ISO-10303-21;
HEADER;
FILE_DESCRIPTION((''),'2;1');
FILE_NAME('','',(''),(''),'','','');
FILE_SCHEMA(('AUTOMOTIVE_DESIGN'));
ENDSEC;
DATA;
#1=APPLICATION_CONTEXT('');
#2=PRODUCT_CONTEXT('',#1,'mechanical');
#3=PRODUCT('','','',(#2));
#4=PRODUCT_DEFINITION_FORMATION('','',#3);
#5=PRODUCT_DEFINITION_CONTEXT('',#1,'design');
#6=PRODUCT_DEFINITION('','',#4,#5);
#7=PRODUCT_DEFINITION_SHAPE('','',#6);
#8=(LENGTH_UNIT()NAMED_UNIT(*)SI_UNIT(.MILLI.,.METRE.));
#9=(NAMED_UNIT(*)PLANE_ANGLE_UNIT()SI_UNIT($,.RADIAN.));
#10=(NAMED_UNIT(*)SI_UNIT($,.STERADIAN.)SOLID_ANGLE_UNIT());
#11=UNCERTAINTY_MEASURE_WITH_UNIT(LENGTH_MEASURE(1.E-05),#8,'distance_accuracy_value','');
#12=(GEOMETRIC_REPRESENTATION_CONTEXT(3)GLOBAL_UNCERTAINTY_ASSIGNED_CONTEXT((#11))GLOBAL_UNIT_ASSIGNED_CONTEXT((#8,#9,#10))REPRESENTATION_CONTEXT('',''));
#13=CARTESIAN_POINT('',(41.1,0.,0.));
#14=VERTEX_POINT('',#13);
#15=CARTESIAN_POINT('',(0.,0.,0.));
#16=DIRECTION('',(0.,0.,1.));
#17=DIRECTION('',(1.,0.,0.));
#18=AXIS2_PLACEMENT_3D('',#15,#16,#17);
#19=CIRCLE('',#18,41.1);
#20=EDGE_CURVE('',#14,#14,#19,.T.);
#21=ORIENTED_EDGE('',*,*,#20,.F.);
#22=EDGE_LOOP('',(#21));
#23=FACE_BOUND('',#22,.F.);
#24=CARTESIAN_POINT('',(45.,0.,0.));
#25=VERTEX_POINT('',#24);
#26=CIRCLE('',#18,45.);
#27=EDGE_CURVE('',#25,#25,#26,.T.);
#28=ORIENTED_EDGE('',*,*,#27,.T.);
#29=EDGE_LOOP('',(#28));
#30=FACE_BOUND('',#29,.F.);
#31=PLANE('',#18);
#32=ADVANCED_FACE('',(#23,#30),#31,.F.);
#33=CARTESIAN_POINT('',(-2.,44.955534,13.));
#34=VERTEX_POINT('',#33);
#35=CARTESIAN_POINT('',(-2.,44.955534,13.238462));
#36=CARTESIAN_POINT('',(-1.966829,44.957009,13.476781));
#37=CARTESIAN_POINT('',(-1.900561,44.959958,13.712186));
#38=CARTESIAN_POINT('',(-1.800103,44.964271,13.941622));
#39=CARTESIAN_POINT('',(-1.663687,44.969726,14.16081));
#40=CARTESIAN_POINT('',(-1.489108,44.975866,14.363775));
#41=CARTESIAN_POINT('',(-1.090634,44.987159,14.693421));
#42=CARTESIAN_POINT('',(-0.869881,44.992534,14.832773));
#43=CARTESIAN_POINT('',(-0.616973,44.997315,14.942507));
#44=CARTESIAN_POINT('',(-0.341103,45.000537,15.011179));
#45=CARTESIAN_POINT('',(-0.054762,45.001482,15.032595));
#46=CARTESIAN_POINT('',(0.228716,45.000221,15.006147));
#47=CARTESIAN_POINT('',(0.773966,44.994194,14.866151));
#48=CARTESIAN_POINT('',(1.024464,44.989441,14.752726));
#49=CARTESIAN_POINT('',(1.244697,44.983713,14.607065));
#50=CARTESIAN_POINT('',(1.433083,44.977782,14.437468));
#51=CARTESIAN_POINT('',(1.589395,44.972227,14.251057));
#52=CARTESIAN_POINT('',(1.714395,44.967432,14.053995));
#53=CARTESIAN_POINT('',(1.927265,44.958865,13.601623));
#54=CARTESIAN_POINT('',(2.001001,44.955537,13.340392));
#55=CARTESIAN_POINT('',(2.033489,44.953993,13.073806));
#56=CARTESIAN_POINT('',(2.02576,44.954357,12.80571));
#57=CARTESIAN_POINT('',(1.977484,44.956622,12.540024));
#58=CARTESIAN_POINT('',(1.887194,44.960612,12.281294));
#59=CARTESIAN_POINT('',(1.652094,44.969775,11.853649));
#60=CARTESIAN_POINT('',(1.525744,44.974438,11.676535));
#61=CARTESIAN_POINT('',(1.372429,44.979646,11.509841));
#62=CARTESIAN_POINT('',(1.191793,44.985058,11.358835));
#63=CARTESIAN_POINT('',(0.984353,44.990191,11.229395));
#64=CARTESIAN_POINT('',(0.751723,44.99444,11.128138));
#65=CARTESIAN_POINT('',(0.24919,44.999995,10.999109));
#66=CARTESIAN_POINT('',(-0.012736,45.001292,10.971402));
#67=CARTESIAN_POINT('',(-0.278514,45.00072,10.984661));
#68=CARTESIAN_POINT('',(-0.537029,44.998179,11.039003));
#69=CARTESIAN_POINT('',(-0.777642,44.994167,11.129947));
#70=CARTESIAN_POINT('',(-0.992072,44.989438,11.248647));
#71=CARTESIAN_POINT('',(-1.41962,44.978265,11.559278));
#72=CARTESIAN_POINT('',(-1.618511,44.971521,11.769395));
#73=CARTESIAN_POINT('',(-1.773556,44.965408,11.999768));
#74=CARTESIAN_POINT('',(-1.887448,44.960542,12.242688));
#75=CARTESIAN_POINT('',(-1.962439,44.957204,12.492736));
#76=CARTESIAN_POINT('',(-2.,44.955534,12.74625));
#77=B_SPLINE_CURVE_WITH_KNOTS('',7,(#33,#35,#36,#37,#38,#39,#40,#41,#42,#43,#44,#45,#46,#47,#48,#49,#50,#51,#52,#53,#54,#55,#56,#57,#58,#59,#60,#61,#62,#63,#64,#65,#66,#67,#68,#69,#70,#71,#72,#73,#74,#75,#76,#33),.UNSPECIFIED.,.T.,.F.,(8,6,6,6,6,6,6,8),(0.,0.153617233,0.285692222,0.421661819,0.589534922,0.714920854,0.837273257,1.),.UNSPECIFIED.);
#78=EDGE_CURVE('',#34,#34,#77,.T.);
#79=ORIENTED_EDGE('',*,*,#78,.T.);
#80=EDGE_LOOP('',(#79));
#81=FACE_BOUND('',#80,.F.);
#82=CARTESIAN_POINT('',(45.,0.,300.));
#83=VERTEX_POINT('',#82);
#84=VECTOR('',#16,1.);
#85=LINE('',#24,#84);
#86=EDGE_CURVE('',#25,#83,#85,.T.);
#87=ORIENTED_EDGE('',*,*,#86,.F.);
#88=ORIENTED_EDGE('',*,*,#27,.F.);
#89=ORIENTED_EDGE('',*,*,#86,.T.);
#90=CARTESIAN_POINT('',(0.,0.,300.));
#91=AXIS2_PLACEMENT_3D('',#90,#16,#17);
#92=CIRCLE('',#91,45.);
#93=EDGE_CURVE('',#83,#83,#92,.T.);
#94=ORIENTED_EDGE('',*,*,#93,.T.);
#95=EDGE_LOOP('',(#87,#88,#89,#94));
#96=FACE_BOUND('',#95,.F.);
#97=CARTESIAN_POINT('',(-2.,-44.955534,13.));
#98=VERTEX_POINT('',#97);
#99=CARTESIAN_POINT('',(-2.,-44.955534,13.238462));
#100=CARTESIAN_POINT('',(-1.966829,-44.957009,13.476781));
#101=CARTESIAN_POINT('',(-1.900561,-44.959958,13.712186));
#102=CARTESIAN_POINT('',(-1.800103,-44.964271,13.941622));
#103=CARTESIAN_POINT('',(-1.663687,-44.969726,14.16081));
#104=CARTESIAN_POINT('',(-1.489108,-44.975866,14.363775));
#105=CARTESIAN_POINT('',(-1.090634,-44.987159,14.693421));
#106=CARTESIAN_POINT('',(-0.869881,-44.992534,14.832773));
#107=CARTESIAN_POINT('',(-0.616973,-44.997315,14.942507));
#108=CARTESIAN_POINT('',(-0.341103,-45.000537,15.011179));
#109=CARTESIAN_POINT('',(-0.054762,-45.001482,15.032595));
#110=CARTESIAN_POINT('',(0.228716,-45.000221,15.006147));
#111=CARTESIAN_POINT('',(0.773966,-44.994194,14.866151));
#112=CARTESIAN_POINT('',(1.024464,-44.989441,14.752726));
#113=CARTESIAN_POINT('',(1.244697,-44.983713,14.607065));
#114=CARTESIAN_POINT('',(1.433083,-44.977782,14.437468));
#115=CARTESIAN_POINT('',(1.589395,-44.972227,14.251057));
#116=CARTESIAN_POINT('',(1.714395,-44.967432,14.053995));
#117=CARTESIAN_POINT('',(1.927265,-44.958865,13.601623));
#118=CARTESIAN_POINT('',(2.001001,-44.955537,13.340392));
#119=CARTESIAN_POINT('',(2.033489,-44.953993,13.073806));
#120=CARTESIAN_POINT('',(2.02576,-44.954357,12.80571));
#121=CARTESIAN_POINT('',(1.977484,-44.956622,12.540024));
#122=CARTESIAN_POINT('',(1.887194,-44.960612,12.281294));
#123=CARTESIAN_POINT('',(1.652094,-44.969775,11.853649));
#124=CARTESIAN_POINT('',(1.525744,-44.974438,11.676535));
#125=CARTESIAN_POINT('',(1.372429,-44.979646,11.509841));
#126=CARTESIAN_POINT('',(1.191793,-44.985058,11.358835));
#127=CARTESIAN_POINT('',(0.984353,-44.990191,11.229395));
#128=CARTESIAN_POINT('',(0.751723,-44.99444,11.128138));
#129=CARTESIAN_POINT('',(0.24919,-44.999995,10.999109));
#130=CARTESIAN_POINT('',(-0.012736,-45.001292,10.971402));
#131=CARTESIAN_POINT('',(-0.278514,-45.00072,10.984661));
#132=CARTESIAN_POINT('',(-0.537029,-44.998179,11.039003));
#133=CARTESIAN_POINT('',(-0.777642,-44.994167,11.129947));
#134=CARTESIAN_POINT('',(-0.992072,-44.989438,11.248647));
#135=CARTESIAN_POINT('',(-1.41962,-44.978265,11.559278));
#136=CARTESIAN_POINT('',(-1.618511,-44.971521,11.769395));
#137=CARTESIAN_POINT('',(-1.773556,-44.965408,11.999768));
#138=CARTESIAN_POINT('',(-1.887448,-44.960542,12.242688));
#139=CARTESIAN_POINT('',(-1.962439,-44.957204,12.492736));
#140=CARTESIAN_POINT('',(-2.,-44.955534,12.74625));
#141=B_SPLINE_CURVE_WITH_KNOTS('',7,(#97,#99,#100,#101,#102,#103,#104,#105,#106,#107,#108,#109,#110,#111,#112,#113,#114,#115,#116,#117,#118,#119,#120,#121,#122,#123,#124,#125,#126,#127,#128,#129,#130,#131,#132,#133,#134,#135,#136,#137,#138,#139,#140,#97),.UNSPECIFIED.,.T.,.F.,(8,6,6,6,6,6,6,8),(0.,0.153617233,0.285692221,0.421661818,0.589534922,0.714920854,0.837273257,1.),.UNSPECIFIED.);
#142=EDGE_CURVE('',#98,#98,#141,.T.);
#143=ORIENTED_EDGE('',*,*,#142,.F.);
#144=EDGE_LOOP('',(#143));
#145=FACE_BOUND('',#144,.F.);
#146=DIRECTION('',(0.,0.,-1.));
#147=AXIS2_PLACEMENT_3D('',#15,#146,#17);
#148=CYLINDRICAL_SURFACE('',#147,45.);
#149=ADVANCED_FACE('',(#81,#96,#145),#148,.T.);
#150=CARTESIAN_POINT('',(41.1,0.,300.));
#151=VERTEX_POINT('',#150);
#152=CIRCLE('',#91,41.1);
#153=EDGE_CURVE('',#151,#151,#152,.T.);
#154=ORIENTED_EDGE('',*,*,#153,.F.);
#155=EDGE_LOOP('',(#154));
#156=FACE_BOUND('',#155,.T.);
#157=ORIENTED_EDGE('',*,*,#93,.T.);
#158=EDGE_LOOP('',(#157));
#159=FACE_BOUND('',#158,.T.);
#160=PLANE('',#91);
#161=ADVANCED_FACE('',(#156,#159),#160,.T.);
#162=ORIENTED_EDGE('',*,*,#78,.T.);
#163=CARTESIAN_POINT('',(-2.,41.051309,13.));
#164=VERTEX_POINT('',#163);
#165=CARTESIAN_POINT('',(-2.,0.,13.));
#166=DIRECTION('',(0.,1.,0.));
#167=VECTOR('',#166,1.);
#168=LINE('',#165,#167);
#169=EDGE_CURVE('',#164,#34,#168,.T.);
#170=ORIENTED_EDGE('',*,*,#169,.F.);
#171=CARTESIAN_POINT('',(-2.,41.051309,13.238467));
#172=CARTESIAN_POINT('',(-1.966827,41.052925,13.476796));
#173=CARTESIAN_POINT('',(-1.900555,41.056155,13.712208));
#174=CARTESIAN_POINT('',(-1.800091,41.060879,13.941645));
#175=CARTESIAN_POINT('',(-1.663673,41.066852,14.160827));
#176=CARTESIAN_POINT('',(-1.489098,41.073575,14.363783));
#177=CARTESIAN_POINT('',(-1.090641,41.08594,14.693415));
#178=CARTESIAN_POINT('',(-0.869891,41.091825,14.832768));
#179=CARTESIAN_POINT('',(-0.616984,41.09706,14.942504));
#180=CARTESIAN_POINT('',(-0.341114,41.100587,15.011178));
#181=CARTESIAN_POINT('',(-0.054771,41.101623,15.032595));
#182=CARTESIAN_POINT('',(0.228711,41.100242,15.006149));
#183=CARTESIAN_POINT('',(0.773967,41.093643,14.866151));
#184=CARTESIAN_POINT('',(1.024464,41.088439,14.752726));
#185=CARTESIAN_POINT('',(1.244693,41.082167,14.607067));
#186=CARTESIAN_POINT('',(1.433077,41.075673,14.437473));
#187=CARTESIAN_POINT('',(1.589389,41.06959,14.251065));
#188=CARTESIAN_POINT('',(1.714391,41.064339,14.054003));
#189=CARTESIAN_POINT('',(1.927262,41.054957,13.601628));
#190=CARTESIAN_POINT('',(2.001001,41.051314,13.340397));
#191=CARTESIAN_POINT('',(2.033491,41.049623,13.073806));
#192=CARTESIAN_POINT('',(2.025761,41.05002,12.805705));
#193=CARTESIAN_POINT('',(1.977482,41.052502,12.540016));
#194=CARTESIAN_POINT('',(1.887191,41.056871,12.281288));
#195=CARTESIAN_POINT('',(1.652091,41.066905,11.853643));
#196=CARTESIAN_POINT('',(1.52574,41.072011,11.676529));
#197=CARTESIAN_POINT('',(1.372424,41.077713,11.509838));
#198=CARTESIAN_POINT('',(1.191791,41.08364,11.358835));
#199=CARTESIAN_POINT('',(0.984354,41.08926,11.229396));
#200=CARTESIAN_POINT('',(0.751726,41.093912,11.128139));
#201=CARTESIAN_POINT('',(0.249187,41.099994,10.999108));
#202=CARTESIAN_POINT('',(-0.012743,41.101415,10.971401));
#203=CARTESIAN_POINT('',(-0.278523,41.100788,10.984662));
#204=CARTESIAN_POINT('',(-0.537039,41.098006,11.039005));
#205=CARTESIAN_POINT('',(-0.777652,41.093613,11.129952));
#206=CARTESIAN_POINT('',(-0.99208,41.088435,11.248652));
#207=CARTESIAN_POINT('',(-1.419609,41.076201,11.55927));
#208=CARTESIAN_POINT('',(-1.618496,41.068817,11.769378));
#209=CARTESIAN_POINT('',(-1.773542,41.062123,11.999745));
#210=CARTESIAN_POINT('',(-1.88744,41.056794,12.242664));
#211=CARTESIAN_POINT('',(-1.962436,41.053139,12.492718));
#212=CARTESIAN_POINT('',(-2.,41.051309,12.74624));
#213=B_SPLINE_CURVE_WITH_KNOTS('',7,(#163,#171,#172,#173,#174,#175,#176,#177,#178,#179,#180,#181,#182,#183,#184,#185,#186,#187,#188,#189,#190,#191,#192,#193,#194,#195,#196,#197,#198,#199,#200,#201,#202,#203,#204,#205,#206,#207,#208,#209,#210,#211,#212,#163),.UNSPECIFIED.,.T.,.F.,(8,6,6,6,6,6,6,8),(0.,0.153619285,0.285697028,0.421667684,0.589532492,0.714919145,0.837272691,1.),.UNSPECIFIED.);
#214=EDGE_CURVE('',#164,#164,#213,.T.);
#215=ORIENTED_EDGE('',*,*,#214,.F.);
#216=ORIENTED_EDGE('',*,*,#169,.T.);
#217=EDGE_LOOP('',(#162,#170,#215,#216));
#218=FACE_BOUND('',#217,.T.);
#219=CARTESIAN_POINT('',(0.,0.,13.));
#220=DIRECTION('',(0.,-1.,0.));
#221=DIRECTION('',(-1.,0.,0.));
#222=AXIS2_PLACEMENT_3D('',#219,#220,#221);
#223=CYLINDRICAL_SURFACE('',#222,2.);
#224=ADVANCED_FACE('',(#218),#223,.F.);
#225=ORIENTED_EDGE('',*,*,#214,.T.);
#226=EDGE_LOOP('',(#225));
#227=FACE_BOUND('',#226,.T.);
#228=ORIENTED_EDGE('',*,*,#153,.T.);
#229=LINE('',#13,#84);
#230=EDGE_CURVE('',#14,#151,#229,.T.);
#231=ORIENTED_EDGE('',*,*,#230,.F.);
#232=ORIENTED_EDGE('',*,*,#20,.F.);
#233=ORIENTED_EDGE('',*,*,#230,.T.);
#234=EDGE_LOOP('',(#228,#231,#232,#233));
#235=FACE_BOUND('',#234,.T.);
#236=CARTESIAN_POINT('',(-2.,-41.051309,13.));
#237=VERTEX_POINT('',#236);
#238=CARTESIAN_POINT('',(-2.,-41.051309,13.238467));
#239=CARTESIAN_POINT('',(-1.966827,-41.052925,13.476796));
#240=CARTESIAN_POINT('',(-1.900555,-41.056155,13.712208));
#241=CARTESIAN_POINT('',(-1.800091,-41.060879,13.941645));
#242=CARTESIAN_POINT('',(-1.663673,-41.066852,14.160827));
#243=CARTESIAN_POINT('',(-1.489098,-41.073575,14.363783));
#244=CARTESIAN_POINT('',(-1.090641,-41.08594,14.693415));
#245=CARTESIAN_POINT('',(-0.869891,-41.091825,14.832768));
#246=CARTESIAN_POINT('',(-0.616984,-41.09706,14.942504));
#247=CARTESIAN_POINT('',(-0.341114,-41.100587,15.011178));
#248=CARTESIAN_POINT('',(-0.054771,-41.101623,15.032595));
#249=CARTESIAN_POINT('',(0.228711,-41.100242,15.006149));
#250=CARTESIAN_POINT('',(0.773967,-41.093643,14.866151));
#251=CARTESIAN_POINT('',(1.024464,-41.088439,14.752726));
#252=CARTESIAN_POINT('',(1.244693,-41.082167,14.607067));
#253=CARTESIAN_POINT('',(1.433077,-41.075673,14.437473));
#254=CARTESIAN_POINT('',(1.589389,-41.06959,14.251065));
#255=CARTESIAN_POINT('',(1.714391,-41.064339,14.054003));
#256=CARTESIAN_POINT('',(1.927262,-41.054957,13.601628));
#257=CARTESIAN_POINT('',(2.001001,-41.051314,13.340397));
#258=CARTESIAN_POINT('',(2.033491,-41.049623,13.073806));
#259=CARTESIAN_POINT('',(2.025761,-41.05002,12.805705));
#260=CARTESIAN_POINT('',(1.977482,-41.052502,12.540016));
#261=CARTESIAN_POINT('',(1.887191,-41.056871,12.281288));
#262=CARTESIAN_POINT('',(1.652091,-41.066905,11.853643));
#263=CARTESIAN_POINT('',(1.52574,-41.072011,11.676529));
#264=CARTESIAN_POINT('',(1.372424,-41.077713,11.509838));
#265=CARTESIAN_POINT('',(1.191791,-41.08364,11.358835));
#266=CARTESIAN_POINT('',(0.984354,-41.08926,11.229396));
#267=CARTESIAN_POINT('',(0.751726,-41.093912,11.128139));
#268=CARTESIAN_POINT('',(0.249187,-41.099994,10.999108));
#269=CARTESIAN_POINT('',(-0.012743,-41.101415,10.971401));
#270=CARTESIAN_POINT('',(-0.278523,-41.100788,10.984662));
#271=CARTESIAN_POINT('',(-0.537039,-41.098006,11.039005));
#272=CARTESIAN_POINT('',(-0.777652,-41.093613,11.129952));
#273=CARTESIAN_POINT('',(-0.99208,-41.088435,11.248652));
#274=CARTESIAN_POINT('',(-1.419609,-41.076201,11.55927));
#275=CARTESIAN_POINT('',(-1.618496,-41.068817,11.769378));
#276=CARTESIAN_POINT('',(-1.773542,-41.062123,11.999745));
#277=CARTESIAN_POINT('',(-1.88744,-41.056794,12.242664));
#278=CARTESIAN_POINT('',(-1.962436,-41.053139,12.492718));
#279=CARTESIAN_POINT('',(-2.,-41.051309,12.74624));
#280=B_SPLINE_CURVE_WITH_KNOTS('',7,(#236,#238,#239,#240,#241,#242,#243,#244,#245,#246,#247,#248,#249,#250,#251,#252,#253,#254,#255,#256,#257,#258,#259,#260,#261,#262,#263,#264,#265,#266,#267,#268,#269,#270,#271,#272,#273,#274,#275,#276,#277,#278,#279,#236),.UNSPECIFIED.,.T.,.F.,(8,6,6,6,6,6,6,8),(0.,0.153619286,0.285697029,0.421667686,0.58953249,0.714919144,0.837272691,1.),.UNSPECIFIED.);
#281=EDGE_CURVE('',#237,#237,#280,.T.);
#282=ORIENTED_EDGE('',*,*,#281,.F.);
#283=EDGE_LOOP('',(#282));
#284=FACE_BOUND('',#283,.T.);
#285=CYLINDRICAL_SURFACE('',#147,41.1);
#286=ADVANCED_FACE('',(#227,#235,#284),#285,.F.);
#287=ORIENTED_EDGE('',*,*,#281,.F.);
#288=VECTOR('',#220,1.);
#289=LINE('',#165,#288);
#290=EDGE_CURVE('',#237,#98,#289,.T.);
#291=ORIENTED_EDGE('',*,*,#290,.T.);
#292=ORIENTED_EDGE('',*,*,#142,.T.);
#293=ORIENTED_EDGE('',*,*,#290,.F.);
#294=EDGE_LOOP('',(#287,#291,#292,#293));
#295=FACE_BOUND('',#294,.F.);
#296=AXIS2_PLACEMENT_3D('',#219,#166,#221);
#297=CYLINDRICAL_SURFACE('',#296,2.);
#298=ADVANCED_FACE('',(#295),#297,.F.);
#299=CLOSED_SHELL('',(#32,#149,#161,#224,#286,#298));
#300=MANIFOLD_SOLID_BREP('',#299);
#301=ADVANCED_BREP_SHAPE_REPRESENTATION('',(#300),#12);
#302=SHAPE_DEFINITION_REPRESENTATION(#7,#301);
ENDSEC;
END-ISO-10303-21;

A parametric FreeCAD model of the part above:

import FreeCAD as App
import Part
import Sketcher
Q = App.Units.Quantity

doc = App.newDocument("Part")
body = doc.addObject("PartDesign::Body", "Body")

sketch1 = doc.addObject("Sketcher::SketchObject", "Sketch")
body.addObject(sketch1)
sketch1.AttachmentSupport = (doc.XY_Plane, [""])
sketch1.MapMode = "FlatFace"
sketch1.addGeometry([
    Part.Circle(App.Vector(0, 0, 0), App.Vector(0, 0, 1), 45),
    Part.Circle(App.Vector(0, 0, 0), App.Vector(0, 0, 1), 41),
], False)
sketch1.addConstraint([
    Sketcher.Constraint("Coincident", 0, 3, -1, 1),
    Sketcher.Constraint("Coincident", 1, 3, -1, 1),
    Sketcher.Constraint("Diameter", 0, Q("90 mm")),
    Sketcher.Constraint("Diameter", 1, Q("82.2 mm")),
])
pad1 = doc.addObject("PartDesign::Pad", "Pad")
body.addObject(pad1)
pad1.Profile = sketch1
pad1.Length = 300

sketch2 = doc.addObject("Sketcher::SketchObject", "Sketch001")
body.addObject(sketch2)
sketch2.AttachmentSupport = (doc.XZ_Plane, [""])
sketch2.MapMode = "FlatFace"
sketch2.addGeometry(Part.Circle(App.Vector(0, 13, 0), App.Vector(0, 0, 1), 2), False)
sketch2.addConstraint([
    Sketcher.Constraint("PointOnObject", 0, 3, -2),
    Sketcher.Constraint("Diameter", 0, Q("4 mm")),
    Sketcher.Constraint("DistanceY", -1, 1, 0, 3, Q("13 mm")),
])
pocket1 = doc.addObject("PartDesign::Pocket", "Pocket")
body.addObject(pocket1)
pocket1.Profile = sketch2
pocket1.Length = 100
pocket1.Midplane = True

doc.recompute()
